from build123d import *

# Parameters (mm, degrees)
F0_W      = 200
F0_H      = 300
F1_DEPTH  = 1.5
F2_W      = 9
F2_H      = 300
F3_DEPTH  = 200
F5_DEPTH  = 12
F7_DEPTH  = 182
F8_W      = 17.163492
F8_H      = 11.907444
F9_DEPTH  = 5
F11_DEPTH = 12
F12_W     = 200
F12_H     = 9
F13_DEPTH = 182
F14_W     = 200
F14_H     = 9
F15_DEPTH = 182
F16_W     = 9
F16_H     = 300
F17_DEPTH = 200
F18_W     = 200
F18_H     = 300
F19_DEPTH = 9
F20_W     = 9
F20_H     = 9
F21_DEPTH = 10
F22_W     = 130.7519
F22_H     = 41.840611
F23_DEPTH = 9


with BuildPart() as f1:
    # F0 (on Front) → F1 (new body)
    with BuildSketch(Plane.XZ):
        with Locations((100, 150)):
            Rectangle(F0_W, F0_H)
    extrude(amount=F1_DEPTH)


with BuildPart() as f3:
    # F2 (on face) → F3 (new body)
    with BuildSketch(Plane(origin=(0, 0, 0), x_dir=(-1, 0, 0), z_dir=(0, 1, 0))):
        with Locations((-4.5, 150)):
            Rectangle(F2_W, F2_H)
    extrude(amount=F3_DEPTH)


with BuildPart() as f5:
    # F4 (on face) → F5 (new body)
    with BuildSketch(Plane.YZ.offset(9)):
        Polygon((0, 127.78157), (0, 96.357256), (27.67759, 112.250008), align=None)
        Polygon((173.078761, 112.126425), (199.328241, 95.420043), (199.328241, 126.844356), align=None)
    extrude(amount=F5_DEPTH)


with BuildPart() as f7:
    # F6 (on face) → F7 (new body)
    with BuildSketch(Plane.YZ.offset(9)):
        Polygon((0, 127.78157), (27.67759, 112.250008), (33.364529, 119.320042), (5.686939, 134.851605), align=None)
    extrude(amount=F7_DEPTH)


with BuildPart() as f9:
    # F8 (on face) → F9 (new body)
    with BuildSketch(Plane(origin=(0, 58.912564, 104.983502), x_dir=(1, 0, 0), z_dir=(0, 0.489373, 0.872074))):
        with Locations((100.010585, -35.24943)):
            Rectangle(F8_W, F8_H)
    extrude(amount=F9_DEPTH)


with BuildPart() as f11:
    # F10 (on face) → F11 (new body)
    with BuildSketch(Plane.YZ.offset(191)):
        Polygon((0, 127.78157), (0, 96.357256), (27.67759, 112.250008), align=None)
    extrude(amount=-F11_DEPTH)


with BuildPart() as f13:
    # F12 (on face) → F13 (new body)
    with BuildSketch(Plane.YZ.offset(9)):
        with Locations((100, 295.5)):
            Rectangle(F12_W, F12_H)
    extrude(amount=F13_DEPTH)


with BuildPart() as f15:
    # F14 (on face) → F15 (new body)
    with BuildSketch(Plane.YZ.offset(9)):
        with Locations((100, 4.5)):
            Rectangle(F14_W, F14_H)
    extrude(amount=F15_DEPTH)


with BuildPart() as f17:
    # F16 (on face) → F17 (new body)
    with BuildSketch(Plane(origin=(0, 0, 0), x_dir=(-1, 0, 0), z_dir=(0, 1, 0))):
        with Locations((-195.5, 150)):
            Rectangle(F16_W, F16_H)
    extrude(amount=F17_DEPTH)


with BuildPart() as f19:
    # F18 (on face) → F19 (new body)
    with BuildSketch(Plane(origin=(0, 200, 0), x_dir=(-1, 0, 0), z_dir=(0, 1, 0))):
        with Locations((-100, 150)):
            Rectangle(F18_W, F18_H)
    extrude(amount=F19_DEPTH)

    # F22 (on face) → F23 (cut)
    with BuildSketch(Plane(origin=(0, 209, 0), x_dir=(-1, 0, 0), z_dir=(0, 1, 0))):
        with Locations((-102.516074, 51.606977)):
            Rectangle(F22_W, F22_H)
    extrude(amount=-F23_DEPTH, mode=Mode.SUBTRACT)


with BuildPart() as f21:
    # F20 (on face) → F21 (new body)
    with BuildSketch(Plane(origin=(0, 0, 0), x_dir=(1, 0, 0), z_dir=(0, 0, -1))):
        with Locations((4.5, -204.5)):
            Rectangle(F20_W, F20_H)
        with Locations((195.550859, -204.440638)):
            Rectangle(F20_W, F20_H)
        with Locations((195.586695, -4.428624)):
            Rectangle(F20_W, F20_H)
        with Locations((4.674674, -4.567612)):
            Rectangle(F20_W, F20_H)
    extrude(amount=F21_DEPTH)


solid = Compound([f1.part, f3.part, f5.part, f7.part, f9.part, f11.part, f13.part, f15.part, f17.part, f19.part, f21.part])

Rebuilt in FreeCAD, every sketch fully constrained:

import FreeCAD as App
import Part
import Sketcher
Q = App.Units.Quantity

doc = App.newDocument("Part")
body = doc.addObject("PartDesign::Body", "Body")

sketch1 = body.newObject("Sketcher::SketchObject", "Sketch")
sketch1.AttachmentSupport = (doc.getObject("XZ_Plane"), [""])
sketch1.MapMode = "FlatFace"
sketch1.addGeometry([
    Part.LineSegment(App.Vector(0, 300, 0), App.Vector(0, 0, 0)),
    Part.LineSegment(App.Vector(0, 0, 0), App.Vector(200, 0, 0)),
    Part.LineSegment(App.Vector(200, 0, 0), App.Vector(200, 300, 0)),
    Part.LineSegment(App.Vector(200, 300, 0), App.Vector(0, 300, 0)),
], False)
sketch1.addConstraint([
    Sketcher.Constraint("Coincident", 0, 2, 1, 1),
    Sketcher.Constraint("Coincident", 1, 2, 2, 1),
    Sketcher.Constraint("Coincident", 2, 2, 3, 1),
    Sketcher.Constraint("Coincident", 3, 2, 0, 1),
    Sketcher.Constraint("Vertical", 0),
    Sketcher.Constraint("Horizontal", 1),
    Sketcher.Constraint("Vertical", 2),
    Sketcher.Constraint("Horizontal", 3),
    Sketcher.Constraint("Coincident", 0, 2, -1, 1),
    Sketcher.Constraint("DistanceX", 1, 1, 1, 2, Q("200 mm")),
    Sketcher.Constraint("DistanceY", 0, 2, 0, 1, Q("300 mm")),
])
pad1 = body.newObject("PartDesign::Pad", "Pad")
pad1.Profile = sketch1
pad1.Length = 1.5
body2 = doc.addObject("PartDesign::Body", "Body001")

sketch2 = body2.newObject("Sketcher::SketchObject", "Sketch001")
sketch2.AttachmentSupport = (doc.getObject("XZ_Plane001"), [""])
sketch2.MapMode = "FlatFace"
sketch2.addGeometry([
    Part.LineSegment(App.Vector(9, 300, 0), App.Vector(9, 0, 0)),
    Part.LineSegment(App.Vector(9, 0, 0), App.Vector(0, 0, 0)),
    Part.LineSegment(App.Vector(0, 0, 0), App.Vector(0, 300, 0)),
    Part.LineSegment(App.Vector(0, 300, 0), App.Vector(9, 300, 0)),
], False)
sketch2.addConstraint([
    Sketcher.Constraint("Coincident", 0, 2, 1, 1),
    Sketcher.Constraint("Coincident", 1, 2, 2, 1),
    Sketcher.Constraint("Coincident", 2, 2, 3, 1),
    Sketcher.Constraint("Coincident", 3, 2, 0, 1),
    Sketcher.Constraint("Vertical", 0),
    Sketcher.Constraint("Horizontal", 1),
    Sketcher.Constraint("Vertical", 2),
    Sketcher.Constraint("Horizontal", 3),
    Sketcher.Constraint("Coincident", 1, 2, -1, 1),
    Sketcher.Constraint("DistanceX", 1, 2, 1, 1, Q("9 mm")),
    Sketcher.Constraint("DistanceY", 0, 2, 0, 1, Q("300 mm")),
])
pad2 = body2.newObject("PartDesign::Pad", "Pad001")
pad2.Profile = sketch2
pad2.Length = 200
pad2.Reversed = True
body3 = doc.addObject("PartDesign::Body", "Body002")
body3.AllowCompound = True

sketch3 = body3.newObject("Sketcher::SketchObject", "Sketch002")
sketch3.AttachmentSupport = (doc.getObject("YZ_Plane002"), [""])
sketch3.MapMode = "FlatFace"
sketch3.AttachmentOffset = App.Placement(App.Vector(0, 0, 9), App.Rotation())
sketch3.addGeometry([
    Part.LineSegment(App.Vector(0, 128, 0), App.Vector(0, 96, 0)),
    Part.LineSegment(App.Vector(0, 96, 0), App.Vector(28, 112, 0)),
    Part.LineSegment(App.Vector(28, 112, 0), App.Vector(0, 128, 0)),
    Part.LineSegment(App.Vector(173, 112, 0), App.Vector(199, 95, 0)),
    Part.LineSegment(App.Vector(199, 95, 0), App.Vector(199, 127, 0)),
    Part.LineSegment(App.Vector(199, 127, 0), App.Vector(173, 112, 0)),
], False)
sketch3.addConstraint([
    Sketcher.Constraint("Coincident", 0, 2, 1, 1),
    Sketcher.Constraint("Coincident", 1, 2, 2, 1),
    Sketcher.Constraint("Coincident", 2, 2, 0, 1),
    Sketcher.Constraint("Coincident", 3, 2, 4, 1),
    Sketcher.Constraint("Coincident", 4, 2, 5, 1),
    Sketcher.Constraint("Coincident", 5, 2, 3, 1),
    Sketcher.Constraint("Vertical", 0),
    Sketcher.Constraint("Vertical", 4),
    Sketcher.Constraint("PointOnObject", 0, 2, -2),
    Sketcher.Constraint("Equal", 0, 4),
    Sketcher.Constraint("DistanceY", 0, 2, 4, 2, Q("30.4871 mm")),
    Sketcher.Constraint("Distance", 1, Q("31.915961 mm")),
    Sketcher.Constraint("Distance", 2, Q("31.73765 mm")),
    Sketcher.Constraint("DistanceY", 0, 2, 0, 1, Q("31.424314 mm")),
    Sketcher.Constraint("DistanceY", -1, 1, 2, 2, Q("127.78157 mm")),
    Sketcher.Constraint("DistanceX", -1, 1, 3, 2, Q("199.328241 mm")),
    Sketcher.Constraint("DistanceX", -1, 1, 5, 2, Q("173.078761 mm")),
    Sketcher.Constraint("DistanceY", 5, 2, 4, 2, Q("14.717931 mm")),
])
pad3 = body3.newObject("PartDesign::Pad", "Pad002")
pad3.Profile = sketch3
pad3.Length = 12
body4 = doc.addObject("PartDesign::Body", "Body003")

sketch4 = body4.newObject("Sketcher::SketchObject", "Sketch003")
sketch4.AttachmentSupport = (doc.getObject("YZ_Plane003"), [""])
sketch4.MapMode = "FlatFace"
sketch4.AttachmentOffset = App.Placement(App.Vector(0, 0, 9), App.Rotation())
sketch4.addGeometry([
    Part.LineSegment(App.Vector(0, 128, 0), App.Vector(28, 112, 0)),
    Part.LineSegment(App.Vector(28, 112, 0), App.Vector(33, 119, 0)),
    Part.LineSegment(App.Vector(33, 119, 0), App.Vector(6, 135, 0)),
    Part.LineSegment(App.Vector(6, 135, 0), App.Vector(0, 128, 0)),
], False)
sketch4.addConstraint([
    Sketcher.Constraint("Coincident", 0, 2, 1, 1),
    Sketcher.Constraint("Coincident", 1, 2, 2, 1),
    Sketcher.Constraint("Coincident", 2, 2, 3, 1),
    Sketcher.Constraint("Coincident", 3, 2, 0, 1),
    Sketcher.Constraint("PointOnObject", 3, 2, -2),
    Sketcher.Constraint("Parallel", 0, 2),
    Sketcher.Constraint("Parallel", 1, 3),
    Sketcher.Constraint("Distance", 0, Q("31.73765 mm")),
    Sketcher.Constraint("DistanceX", -1, 1, 0, 2, Q("27.67759 mm")),
    Sketcher.Constraint("DistanceX", -1, 1, 1, 2, Q("33.364529 mm")),
    Sketcher.Constraint("DistanceY", -1, 1, 1, 2, Q("119.320042 mm")),
    Sketcher.Constraint("DistanceY", -1, 1, 3, 2, Q("127.78157 mm")),
])
pad4 = body4.newObject("PartDesign::Pad", "Pad003")
pad4.Profile = sketch4
pad4.Length = 182
body5 = doc.addObject("PartDesign::Body", "Body004")

sketch5 = body5.newObject("Sketcher::SketchObject", "Sketch004")
sketch5.Placement = App.Placement(App.Vector(0, 58.912564, 104.983502), App.Rotation(App.Vector(1, 0, 0), App.Vector(0, 0.872074438, -0.489373246), App.Vector(0, 0.489373246, 0.872074438), "ZXY"))
sketch5.addGeometry([
    Part.LineSegment(App.Vector(91, -29, 0), App.Vector(91, -41, 0)),
    Part.LineSegment(App.Vector(91, -41, 0), App.Vector(109, -41, 0)),
    Part.LineSegment(App.Vector(109, -41, 0), App.Vector(109, -29, 0)),
    Part.LineSegment(App.Vector(109, -29, 0), App.Vector(91, -29, 0)),
], False)
sketch5.addConstraint([
    Sketcher.Constraint("Coincident", 0, 2, 1, 1),
    Sketcher.Constraint("Coincident", 1, 2, 2, 1),
    Sketcher.Constraint("Coincident", 2, 2, 3, 1),
    Sketcher.Constraint("Coincident", 3, 2, 0, 1),
    Sketcher.Constraint("Vertical", 0),
    Sketcher.Constraint("Horizontal", 1),
    Sketcher.Constraint("Vertical", 2),
    Sketcher.Constraint("Horizontal", 3),
    Sketcher.Constraint("DistanceX", 1, 1, 1, 2, Q("17.163492 mm")),
    Sketcher.Constraint("DistanceY", 0, 2, 0, 1, Q("11.907444 mm")),
    Sketcher.Constraint("DistanceX", -1, 1, 0, 2, Q("91.428839 mm")),
    Sketcher.Constraint("DistanceY", 0, 2, -1, 1, Q("41.203152 mm")),
])
pad5 = body5.newObject("PartDesign::Pad", "Pad004")
pad5.Profile = sketch5
pad5.Length = 5
body6 = doc.addObject("PartDesign::Body", "Body005")

sketch6 = body6.newObject("Sketcher::SketchObject", "Sketch005")
sketch6.AttachmentSupport = (doc.getObject("YZ_Plane005"), [""])
sketch6.MapMode = "FlatFace"
sketch6.AttachmentOffset = App.Placement(App.Vector(0, 0, 191), App.Rotation())
sketch6.addGeometry([
    Part.LineSegment(App.Vector(0, 128, 0), App.Vector(0, 96, 0)),
    Part.LineSegment(App.Vector(0, 96, 0), App.Vector(28, 112, 0)),
    Part.LineSegment(App.Vector(28, 112, 0), App.Vector(0, 128, 0)),
], False)
sketch6.addConstraint([
    Sketcher.Constraint("Coincident", 0, 2, 1, 1),
    Sketcher.Constraint("Coincident", 1, 2, 2, 1),
    Sketcher.Constraint("Coincident", 2, 2, 0, 1),
    Sketcher.Constraint("Vertical", 0),
    Sketcher.Constraint("PointOnObject", 0, 2, -2),
    Sketcher.Constraint("Distance", 1, Q("31.915961 mm")),
    Sketcher.Constraint("Distance", 2, Q("31.73765 mm")),
    Sketcher.Constraint("DistanceY", 0, 2, 0, 1, Q("31.424314 mm")),
    Sketcher.Constraint("DistanceY", -1, 1, 2, 2, Q("127.78157 mm")),
])
pad6 = body6.newObject("PartDesign::Pad", "Pad005")
pad6.Profile = sketch6
pad6.Length = 12
pad6.Reversed = True
body7 = doc.addObject("PartDesign::Body", "Body006")

sketch7 = body7.newObject("Sketcher::SketchObject", "Sketch006")
sketch7.AttachmentSupport = (doc.getObject("YZ_Plane006"), [""])
sketch7.MapMode = "FlatFace"
sketch7.AttachmentOffset = App.Placement(App.Vector(0, 0, 9), App.Rotation())
sketch7.addGeometry([
    Part.LineSegment(App.Vector(0, 300, 0), App.Vector(0, 291, 0)),
    Part.LineSegment(App.Vector(0, 291, 0), App.Vector(200, 291, 0)),
    Part.LineSegment(App.Vector(200, 291, 0), App.Vector(200, 300, 0)),
    Part.LineSegment(App.Vector(200, 300, 0), App.Vector(0, 300, 0)),
], False)
sketch7.addConstraint([
    Sketcher.Constraint("Coincident", 0, 2, 1, 1),
    Sketcher.Constraint("Coincident", 1, 2, 2, 1),
    Sketcher.Constraint("Coincident", 2, 2, 3, 1),
    Sketcher.Constraint("Coincident", 3, 2, 0, 1),
    Sketcher.Constraint("Vertical", 0),
    Sketcher.Constraint("Horizontal", 1),
    Sketcher.Constraint("Vertical", 2),
    Sketcher.Constraint("Horizontal", 3),
    Sketcher.Constraint("PointOnObject", 0, 2, -2),
    Sketcher.Constraint("DistanceX", 1, 1, 1, 2, Q("200 mm")),
    Sketcher.Constraint("DistanceY", 0, 2, 0, 1, Q("9 mm")),
    Sketcher.Constraint("DistanceY", -1, 1, 0, 2, Q("291 mm")),
])
pad7 = body7.newObject("PartDesign::Pad", "Pad006")
pad7.Profile = sketch7
pad7.Length = 182
body8 = doc.addObject("PartDesign::Body", "Body007")

sketch8 = body8.newObject("Sketcher::SketchObject", "Sketch007")
sketch8.AttachmentSupport = (doc.getObject("YZ_Plane007"), [""])
sketch8.MapMode = "FlatFace"
sketch8.AttachmentOffset = App.Placement(App.Vector(0, 0, 9), App.Rotation())
sketch8.addGeometry([
    Part.LineSegment(App.Vector(0, 9, 0), App.Vector(0, 0, 0)),
    Part.LineSegment(App.Vector(0, 0, 0), App.Vector(200, 0, 0)),
    Part.LineSegment(App.Vector(200, 0, 0), App.Vector(200, 9, 0)),
    Part.LineSegment(App.Vector(200, 9, 0), App.Vector(0, 9, 0)),
], False)
sketch8.addConstraint([
    Sketcher.Constraint("Coincident", 0, 2, 1, 1),
    Sketcher.Constraint("Coincident", 1, 2, 2, 1),
    Sketcher.Constraint("Coincident", 2, 2, 3, 1),
    Sketcher.Constraint("Coincident", 3, 2, 0, 1),
    Sketcher.Constraint("Vertical", 0),
    Sketcher.Constraint("Horizontal", 1),
    Sketcher.Constraint("Vertical", 2),
    Sketcher.Constraint("Horizontal", 3),
    Sketcher.Constraint("Coincident", 0, 2, -1, 1),
    Sketcher.Constraint("DistanceX", 1, 1, 1, 2, Q("200 mm")),
    Sketcher.Constraint("DistanceY", 0, 2, 0, 1, Q("9 mm")),
])
pad8 = body8.newObject("PartDesign::Pad", "Pad007")
pad8.Profile = sketch8
pad8.Length = 182
body9 = doc.addObject("PartDesign::Body", "Body008")

sketch9 = body9.newObject("Sketcher::SketchObject", "Sketch008")
sketch9.AttachmentSupport = (doc.getObject("XZ_Plane008"), [""])
sketch9.MapMode = "FlatFace"
sketch9.addGeometry([
    Part.LineSegment(App.Vector(200, 300, 0), App.Vector(200, 0, 0)),
    Part.LineSegment(App.Vector(200, 0, 0), App.Vector(191, 0, 0)),
    Part.LineSegment(App.Vector(191, 0, 0), App.Vector(191, 300, 0)),
    Part.LineSegment(App.Vector(191, 300, 0), App.Vector(200, 300, 0)),
], False)
sketch9.addConstraint([
    Sketcher.Constraint("Coincident", 0, 2, 1, 1),
    Sketcher.Constraint("Coincident", 1, 2, 2, 1),
    Sketcher.Constraint("Coincident", 2, 2, 3, 1),
    Sketcher.Constraint("Coincident", 3, 2, 0, 1),
    Sketcher.Constraint("Vertical", 0),
    Sketcher.Constraint("Horizontal", 1),
    Sketcher.Constraint("Vertical", 2),
    Sketcher.Constraint("Horizontal", 3),
    Sketcher.Constraint("PointOnObject", 0, 2, -1),
    Sketcher.Constraint("DistanceX", 1, 2, 1, 1, Q("9 mm")),
    Sketcher.Constraint("DistanceY", 0, 2, 0, 1, Q("300 mm")),
    Sketcher.Constraint("DistanceX", -1, 1, 0, 2, Q("200 mm")),
])
pad9 = body9.newObject("PartDesign::Pad", "Pad008")
pad9.Profile = sketch9
pad9.Length = 200
pad9.Reversed = True
body10 = doc.addObject("PartDesign::Body", "Body009")

sketch10 = body10.newObject("Sketcher::SketchObject", "Sketch009")
sketch10.AttachmentSupport = (doc.getObject("XZ_Plane009"), [""])
sketch10.MapMode = "FlatFace"
sketch10.AttachmentOffset = App.Placement(App.Vector(0, 0, -200), App.Rotation())
sketch10.addGeometry([
    Part.LineSegment(App.Vector(200, 300, 0), App.Vector(200, 0, 0)),
    Part.LineSegment(App.Vector(200, 0, 0), App.Vector(0, 0, 0)),
    Part.LineSegment(App.Vector(0, 0, 0), App.Vector(0, 300, 0)),
    Part.LineSegment(App.Vector(0, 300, 0), App.Vector(200, 300, 0)),
], False)
sketch10.addConstraint([
    Sketcher.Constraint("Coincident", 0, 2, 1, 1),
    Sketcher.Constraint("Coincident", 1, 2, 2, 1),
    Sketcher.Constraint("Coincident", 2, 2, 3, 1),
    Sketcher.Constraint("Coincident", 3, 2, 0, 1),
    Sketcher.Constraint("Vertical", 0),
    Sketcher.Constraint("Horizontal", 1),
    Sketcher.Constraint("Vertical", 2),
    Sketcher.Constraint("Horizontal", 3),
    Sketcher.Constraint("Coincident", 1, 2, -1, 1),
    Sketcher.Constraint("DistanceX", 1, 2, 1, 1, Q("200 mm")),
    Sketcher.Constraint("DistanceY", 0, 2, 0, 1, Q("300 mm")),
])
pad10 = body10.newObject("PartDesign::Pad", "Pad009")
pad10.Profile = sketch10
pad10.Length = 9
pad10.Reversed = True

sketch11 = body10.newObject("Sketcher::SketchObject", "Sketch010")
sketch11.AttachmentSupport = (doc.getObject("XZ_Plane009"), [""])
sketch11.MapMode = "FlatFace"
sketch11.AttachmentOffset = App.Placement(App.Vector(0, 0, -209), App.Rotation())
sketch11.addGeometry([
    Part.LineSegment(App.Vector(168, 73, 0), App.Vector(168, 31, 0)),
    Part.LineSegment(App.Vector(168, 31, 0), App.Vector(37, 31, 0)),
    Part.LineSegment(App.Vector(37, 31, 0), App.Vector(37, 73, 0)),
    Part.LineSegment(App.Vector(37, 73, 0), App.Vector(168, 73, 0)),
], False)
sketch11.addConstraint([
    Sketcher.Constraint("Coincident", 0, 2, 1, 1),
    Sketcher.Constraint("Coincident", 1, 2, 2, 1),
    Sketcher.Constraint("Coincident", 2, 2, 3, 1),
    Sketcher.Constraint("Coincident", 3, 2, 0, 1),
    Sketcher.Constraint("Vertical", 0),
    Sketcher.Constraint("Horizontal", 1),
    Sketcher.Constraint("Vertical", 2),
    Sketcher.Constraint("Horizontal", 3),
    Sketcher.Constraint("DistanceX", 1, 2, 1, 1, Q("130.7519 mm")),
    Sketcher.Constraint("DistanceY", 0, 2, 0, 1, Q("41.840611 mm")),
    Sketcher.Constraint("DistanceY", -1, 1, 0, 2, Q("30.686671 mm")),
    Sketcher.Constraint("DistanceX", -1, 1, 0, 2, Q("167.892024 mm")),
])
pocket1 = body10.newObject("PartDesign::Pocket", "Pocket")
pocket1.Profile = sketch11
pocket1.Length = 9
pocket1.Reversed = True
body11 = doc.addObject("PartDesign::Body", "Body010")
body11.AllowCompound = True

sketch12 = body11.newObject("Sketcher::SketchObject", "Sketch011")
sketch12.AttachmentSupport = (doc.getObject("XY_Plane010"), [""])
sketch12.MapMode = "FlatFace"
sketch12.addGeometry([
    Part.LineSegment(App.Vector(0, 200, 0), App.Vector(0, 209, 0)),
    Part.LineSegment(App.Vector(0, 209, 0), App.Vector(9, 209, 0)),
    Part.LineSegment(App.Vector(9, 209, 0), App.Vector(9, 200, 0)),
    Part.LineSegment(App.Vector(9, 200, 0), App.Vector(0, 200, 0)),
    Part.LineSegment(App.Vector(191, 200, 0), App.Vector(191, 209, 0)),
    Part.LineSegment(App.Vector(191, 209, 0), App.Vector(200, 209, 0)),
    Part.LineSegment(App.Vector(200, 209, 0), App.Vector(200, 200, 0)),
    Part.LineSegment(App.Vector(200, 200, 0), App.Vector(191, 200, 0)),
    Part.LineSegment(App.Vector(191, 0, 0), App.Vector(191, 9, 0)),
    Part.LineSegment(App.Vector(191, 9, 0), App.Vector(200, 9, 0)),
    Part.LineSegment(App.Vector(200, 9, 0), App.Vector(200, 0, 0)),
    Part.LineSegment(App.Vector(200, 0, 0), App.Vector(191, 0, 0)),
    Part.LineSegment(App.Vector(0, 0, 0), App.Vector(0, 9, 0)),
    Part.LineSegment(App.Vector(0, 9, 0), App.Vector(9, 9, 0)),
    Part.LineSegment(App.Vector(9, 9, 0), App.Vector(9, 0, 0)),
    Part.LineSegment(App.Vector(9, 0, 0), App.Vector(0, 0, 0)),
], False)
sketch12.addConstraint([
    Sketcher.Constraint("Coincident", 0, 2, 1, 1),
    Sketcher.Constraint("Coincident", 1, 2, 2, 1),
    Sketcher.Constraint("Coincident", 2, 2, 3, 1),
    Sketcher.Constraint("Coincident", 3, 2, 0, 1),
    Sketcher.Constraint("Coincident", 4, 2, 5, 1),
    Sketcher.Constraint("Coincident", 5, 2, 6, 1),
    Sketcher.Constraint("Coincident", 6, 2, 7, 1),
    Sketcher.Constraint("Coincident", 7, 2, 4, 1),
    Sketcher.Constraint("Coincident", 8, 2, 9, 1),
    Sketcher.Constraint("Coincident", 9, 2, 10, 1),
    Sketcher.Constraint("Coincident", 10, 2, 11, 1),
    Sketcher.Constraint("Coincident", 11, 2, 8, 1),
    Sketcher.Constraint("Coincident", 12, 2, 13, 1),
    Sketcher.Constraint("Coincident", 13, 2, 14, 1),
    Sketcher.Constraint("Coincident", 14, 2, 15, 1),
    Sketcher.Constraint("Coincident", 15, 2, 12, 1),
    Sketcher.Constraint("Vertical", 0),
    Sketcher.Constraint("Horizontal", 1),
    Sketcher.Constraint("Vertical", 2),
    Sketcher.Constraint("Horizontal", 3),
    Sketcher.Constraint("Vertical", 4),
    Sketcher.Constraint("Horizontal", 5),
    Sketcher.Constraint("Vertical", 6),
    Sketcher.Constraint("Horizontal", 7),
    Sketcher.Constraint("Vertical", 8),
    Sketcher.Constraint("Horizontal", 9),
    Sketcher.Constraint("Vertical", 10),
    Sketcher.Constraint("Horizontal", 11),
    Sketcher.Constraint("Vertical", 12),
    Sketcher.Constraint("Horizontal", 13),
    Sketcher.Constraint("Vertical", 14),
    Sketcher.Constraint("Horizontal", 15),
    Sketcher.Constraint("PointOnObject", 0, 2, -2),
    Sketcher.Constraint("Equal", 3, 5),
    Sketcher.Constraint("Equal", 7, 9),
    Sketcher.Constraint("Equal", 11, 13),
    Sketcher.Constraint("Equal", 15, 0),
    Sketcher.Constraint("Equal", 2, 4),
    Sketcher.Constraint("Equal", 6, 8),
    Sketcher.Constraint("Equal", 10, 12),
    Sketcher.Constraint("DistanceX", 1, 1, 1, 2, Q("9 mm")),
    Sketcher.Constraint("DistanceY", -1, 1, 0, 2, Q("209 mm")),
    Sketcher.Constraint("DistanceX", -1, 1, 4, 2, Q("191.050859 mm")),
    Sketcher.Constraint("DistanceY", -1, 1, 4, 2, Q("208.940638 mm")),
    Sketcher.Constraint("DistanceX", 12, 2, 8, 2, Q("190.912021 mm")),
    Sketcher.Constraint("DistanceY", 8, 2, 12, 2, Q("0.138988 mm")),
    Sketcher.Constraint("DistanceY", 12, 2, 3, 2, Q("190.932388 mm")),
    Sketcher.Constraint("DistanceX", -1, 1, 8, 2, Q("191.086695 mm")),
])
pad11 = body11.newObject("PartDesign::Pad", "Pad010")
pad11.Profile = sketch12
pad11.Length = 10
pad11.Reversed = True

doc.recompute()
